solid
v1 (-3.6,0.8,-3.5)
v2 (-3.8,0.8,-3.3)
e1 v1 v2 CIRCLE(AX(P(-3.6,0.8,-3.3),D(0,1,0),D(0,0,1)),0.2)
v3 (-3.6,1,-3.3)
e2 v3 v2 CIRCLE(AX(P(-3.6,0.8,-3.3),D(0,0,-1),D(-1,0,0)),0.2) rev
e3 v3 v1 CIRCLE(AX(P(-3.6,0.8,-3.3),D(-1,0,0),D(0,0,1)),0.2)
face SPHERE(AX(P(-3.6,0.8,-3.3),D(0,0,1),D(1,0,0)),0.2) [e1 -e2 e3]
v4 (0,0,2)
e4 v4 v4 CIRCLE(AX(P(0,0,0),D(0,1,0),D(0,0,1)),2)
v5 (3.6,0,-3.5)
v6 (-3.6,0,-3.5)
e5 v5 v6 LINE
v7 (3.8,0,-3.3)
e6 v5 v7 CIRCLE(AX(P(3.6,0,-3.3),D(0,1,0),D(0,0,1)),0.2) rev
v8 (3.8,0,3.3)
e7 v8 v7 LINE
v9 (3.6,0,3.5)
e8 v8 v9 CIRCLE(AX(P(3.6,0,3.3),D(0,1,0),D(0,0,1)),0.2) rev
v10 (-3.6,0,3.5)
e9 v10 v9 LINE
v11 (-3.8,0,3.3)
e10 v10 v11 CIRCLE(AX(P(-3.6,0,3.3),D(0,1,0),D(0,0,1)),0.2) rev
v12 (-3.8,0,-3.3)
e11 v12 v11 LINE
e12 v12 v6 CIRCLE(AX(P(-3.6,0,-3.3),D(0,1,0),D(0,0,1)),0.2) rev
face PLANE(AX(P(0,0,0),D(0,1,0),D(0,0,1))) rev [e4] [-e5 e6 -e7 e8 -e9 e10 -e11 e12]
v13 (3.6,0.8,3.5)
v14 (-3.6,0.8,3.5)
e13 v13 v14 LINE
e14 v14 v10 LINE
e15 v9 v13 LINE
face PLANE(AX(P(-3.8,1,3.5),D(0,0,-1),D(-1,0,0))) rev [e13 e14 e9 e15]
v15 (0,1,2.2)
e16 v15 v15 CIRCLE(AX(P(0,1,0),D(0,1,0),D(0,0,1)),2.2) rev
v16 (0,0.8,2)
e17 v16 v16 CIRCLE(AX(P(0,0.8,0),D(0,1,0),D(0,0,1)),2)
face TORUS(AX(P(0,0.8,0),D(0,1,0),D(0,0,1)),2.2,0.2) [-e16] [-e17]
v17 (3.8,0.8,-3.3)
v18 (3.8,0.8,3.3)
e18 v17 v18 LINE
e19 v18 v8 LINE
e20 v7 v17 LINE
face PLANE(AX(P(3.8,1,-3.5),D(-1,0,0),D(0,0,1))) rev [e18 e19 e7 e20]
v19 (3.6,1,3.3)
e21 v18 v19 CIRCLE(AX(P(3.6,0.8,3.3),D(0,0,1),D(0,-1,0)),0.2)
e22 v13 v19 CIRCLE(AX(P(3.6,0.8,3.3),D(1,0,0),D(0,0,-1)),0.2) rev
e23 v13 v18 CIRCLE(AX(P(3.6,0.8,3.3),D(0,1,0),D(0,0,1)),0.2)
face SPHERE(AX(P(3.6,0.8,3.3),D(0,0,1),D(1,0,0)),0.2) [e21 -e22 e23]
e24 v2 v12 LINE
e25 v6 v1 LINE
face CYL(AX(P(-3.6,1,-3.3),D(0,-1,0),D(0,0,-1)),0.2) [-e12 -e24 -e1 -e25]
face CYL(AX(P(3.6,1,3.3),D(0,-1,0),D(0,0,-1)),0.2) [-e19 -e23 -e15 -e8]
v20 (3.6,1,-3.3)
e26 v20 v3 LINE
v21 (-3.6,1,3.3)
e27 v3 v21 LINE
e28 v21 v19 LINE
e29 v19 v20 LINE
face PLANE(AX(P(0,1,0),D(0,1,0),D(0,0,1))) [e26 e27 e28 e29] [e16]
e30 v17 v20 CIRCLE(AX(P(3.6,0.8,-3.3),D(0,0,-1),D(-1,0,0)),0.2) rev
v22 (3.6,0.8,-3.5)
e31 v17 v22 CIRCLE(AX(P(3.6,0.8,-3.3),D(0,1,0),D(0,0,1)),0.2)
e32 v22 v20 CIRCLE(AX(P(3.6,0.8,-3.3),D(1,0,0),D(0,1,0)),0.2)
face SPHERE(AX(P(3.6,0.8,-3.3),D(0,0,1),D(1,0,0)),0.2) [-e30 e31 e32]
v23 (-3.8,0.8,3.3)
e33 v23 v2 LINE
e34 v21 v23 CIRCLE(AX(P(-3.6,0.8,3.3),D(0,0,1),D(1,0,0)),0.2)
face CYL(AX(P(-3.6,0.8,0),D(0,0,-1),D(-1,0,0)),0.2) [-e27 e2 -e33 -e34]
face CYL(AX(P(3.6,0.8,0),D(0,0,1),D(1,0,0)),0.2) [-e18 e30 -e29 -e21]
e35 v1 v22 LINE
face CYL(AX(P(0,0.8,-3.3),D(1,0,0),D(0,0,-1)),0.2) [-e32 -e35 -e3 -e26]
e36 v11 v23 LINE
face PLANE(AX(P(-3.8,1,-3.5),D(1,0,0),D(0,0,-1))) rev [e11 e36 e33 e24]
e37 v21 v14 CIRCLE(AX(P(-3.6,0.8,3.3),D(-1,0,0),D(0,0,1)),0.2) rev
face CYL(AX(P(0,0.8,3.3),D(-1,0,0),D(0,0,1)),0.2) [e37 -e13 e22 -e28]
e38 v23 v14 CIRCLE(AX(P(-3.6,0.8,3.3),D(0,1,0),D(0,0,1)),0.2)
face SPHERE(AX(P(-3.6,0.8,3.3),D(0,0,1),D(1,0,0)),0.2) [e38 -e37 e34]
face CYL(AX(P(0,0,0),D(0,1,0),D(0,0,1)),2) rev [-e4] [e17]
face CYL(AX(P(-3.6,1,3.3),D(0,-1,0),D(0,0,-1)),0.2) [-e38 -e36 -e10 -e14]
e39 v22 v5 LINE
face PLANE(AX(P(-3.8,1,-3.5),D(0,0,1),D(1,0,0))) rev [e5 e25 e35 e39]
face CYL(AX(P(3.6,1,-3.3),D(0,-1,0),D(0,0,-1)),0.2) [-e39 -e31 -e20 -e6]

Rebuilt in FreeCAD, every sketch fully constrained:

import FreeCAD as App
import Part
import Sketcher
from FreeCAD import Vector
Q = App.Units.Quantity


def edges_at(feature, points):
    """Names of the edges that pass closest to the given points."""
    edges = feature.Shape.Edges
    near = lambda p: min(range(len(edges)), key=lambda i: edges[i].distToShape(Part.Vertex(*p))[0])
    return sorted({f"Edge{near(p) + 1}" for p in points})


def add_polygon(sketch, points):
    """Adds a closed chain of lines whose ends are joined by coincident constraints."""
    first, n = sketch.GeometryCount, len(points)
    for a, b in zip(points, points[1:] + points[:1]):
        sketch.addGeometry(Part.LineSegment(App.Vector(*a, 0), App.Vector(*b, 0)), False)
    for i in range(n):
        sketch.addConstraint(Sketcher.Constraint("Coincident", first + i, 2, first + (i + 1) % n, 1))

doc = App.newDocument("Part")
body = doc.addObject("PartDesign::Body", "Body")

sketch1 = doc.addObject("Sketcher::SketchObject", "Sketch")
body.addObject(sketch1)
sketch1.AttachmentSupport = (doc.XZ_Plane, [""])
sketch1.MapMode = "FlatFace"
add_polygon(sketch1, [(-4, -4), (-4, 4), (4, 4), (4, -4)])
sketch1.addConstraint([
    Sketcher.Constraint("Vertical", 0),
    Sketcher.Constraint("Horizontal", 1),
    Sketcher.Constraint("Vertical", 2),
    Sketcher.Constraint("Horizontal", 3),
    Sketcher.Constraint("Symmetric", 0, 2, 2, 2, -1, 1),
    Sketcher.Constraint("DistanceY", 0, 1, 0, 2, Q("7 mm")),
    Sketcher.Constraint("DistanceX", 1, 1, 1, 2, Q("7.6 mm")),
])
pad1 = doc.addObject("PartDesign::Pad", "Pad")
body.addObject(pad1)
pad1.Profile = sketch1
pad1.Length = 1
pad1.Reversed = True

sketch2 = doc.addObject("Sketcher::SketchObject", "Sketch001")
body.addObject(sketch2)
sketch2.AttachmentSupport = (doc.XZ_Plane, [""])
sketch2.MapMode = "FlatFace"
sketch2.AttachmentOffset = App.Placement(Vector(0, 0, -1), App.Rotation())
sketch2.addGeometry(Part.Circle(Vector(0, 0, 0), Vector(0, 0, 1), 2), False)
sketch2.addConstraint([
    Sketcher.Constraint("Coincident", 0, 3, -1, 1),
    Sketcher.Constraint("Diameter", 0, Q("4 mm")),
])
pocket1 = doc.addObject("PartDesign::Pocket", "Pocket")
body.addObject(pocket1)
pocket1.Profile = sketch2
pocket1.Type = "ThroughAll"
pocket1.Reversed = True
doc.recompute()

fillet = doc.addObject("PartDesign::Fillet", "Fillet")
body.addObject(fillet)
fillet.Base = (pocket1, edges_at(pocket1, [
    (-3.8, 1, 0),
    (0, 1, -2),
    (0, 1, 3.5),
    (3.8, 1, 0),
    (3.8, 0.5, 3.5),
    (-3.8, 0.5, 3.5),
    (-3.8, 0.5, -3.5),
    (3.8, 0.5, -3.5),
    (0, 1, -3.5),
]))
fillet.Radius = 0.2

doc.recompute()
